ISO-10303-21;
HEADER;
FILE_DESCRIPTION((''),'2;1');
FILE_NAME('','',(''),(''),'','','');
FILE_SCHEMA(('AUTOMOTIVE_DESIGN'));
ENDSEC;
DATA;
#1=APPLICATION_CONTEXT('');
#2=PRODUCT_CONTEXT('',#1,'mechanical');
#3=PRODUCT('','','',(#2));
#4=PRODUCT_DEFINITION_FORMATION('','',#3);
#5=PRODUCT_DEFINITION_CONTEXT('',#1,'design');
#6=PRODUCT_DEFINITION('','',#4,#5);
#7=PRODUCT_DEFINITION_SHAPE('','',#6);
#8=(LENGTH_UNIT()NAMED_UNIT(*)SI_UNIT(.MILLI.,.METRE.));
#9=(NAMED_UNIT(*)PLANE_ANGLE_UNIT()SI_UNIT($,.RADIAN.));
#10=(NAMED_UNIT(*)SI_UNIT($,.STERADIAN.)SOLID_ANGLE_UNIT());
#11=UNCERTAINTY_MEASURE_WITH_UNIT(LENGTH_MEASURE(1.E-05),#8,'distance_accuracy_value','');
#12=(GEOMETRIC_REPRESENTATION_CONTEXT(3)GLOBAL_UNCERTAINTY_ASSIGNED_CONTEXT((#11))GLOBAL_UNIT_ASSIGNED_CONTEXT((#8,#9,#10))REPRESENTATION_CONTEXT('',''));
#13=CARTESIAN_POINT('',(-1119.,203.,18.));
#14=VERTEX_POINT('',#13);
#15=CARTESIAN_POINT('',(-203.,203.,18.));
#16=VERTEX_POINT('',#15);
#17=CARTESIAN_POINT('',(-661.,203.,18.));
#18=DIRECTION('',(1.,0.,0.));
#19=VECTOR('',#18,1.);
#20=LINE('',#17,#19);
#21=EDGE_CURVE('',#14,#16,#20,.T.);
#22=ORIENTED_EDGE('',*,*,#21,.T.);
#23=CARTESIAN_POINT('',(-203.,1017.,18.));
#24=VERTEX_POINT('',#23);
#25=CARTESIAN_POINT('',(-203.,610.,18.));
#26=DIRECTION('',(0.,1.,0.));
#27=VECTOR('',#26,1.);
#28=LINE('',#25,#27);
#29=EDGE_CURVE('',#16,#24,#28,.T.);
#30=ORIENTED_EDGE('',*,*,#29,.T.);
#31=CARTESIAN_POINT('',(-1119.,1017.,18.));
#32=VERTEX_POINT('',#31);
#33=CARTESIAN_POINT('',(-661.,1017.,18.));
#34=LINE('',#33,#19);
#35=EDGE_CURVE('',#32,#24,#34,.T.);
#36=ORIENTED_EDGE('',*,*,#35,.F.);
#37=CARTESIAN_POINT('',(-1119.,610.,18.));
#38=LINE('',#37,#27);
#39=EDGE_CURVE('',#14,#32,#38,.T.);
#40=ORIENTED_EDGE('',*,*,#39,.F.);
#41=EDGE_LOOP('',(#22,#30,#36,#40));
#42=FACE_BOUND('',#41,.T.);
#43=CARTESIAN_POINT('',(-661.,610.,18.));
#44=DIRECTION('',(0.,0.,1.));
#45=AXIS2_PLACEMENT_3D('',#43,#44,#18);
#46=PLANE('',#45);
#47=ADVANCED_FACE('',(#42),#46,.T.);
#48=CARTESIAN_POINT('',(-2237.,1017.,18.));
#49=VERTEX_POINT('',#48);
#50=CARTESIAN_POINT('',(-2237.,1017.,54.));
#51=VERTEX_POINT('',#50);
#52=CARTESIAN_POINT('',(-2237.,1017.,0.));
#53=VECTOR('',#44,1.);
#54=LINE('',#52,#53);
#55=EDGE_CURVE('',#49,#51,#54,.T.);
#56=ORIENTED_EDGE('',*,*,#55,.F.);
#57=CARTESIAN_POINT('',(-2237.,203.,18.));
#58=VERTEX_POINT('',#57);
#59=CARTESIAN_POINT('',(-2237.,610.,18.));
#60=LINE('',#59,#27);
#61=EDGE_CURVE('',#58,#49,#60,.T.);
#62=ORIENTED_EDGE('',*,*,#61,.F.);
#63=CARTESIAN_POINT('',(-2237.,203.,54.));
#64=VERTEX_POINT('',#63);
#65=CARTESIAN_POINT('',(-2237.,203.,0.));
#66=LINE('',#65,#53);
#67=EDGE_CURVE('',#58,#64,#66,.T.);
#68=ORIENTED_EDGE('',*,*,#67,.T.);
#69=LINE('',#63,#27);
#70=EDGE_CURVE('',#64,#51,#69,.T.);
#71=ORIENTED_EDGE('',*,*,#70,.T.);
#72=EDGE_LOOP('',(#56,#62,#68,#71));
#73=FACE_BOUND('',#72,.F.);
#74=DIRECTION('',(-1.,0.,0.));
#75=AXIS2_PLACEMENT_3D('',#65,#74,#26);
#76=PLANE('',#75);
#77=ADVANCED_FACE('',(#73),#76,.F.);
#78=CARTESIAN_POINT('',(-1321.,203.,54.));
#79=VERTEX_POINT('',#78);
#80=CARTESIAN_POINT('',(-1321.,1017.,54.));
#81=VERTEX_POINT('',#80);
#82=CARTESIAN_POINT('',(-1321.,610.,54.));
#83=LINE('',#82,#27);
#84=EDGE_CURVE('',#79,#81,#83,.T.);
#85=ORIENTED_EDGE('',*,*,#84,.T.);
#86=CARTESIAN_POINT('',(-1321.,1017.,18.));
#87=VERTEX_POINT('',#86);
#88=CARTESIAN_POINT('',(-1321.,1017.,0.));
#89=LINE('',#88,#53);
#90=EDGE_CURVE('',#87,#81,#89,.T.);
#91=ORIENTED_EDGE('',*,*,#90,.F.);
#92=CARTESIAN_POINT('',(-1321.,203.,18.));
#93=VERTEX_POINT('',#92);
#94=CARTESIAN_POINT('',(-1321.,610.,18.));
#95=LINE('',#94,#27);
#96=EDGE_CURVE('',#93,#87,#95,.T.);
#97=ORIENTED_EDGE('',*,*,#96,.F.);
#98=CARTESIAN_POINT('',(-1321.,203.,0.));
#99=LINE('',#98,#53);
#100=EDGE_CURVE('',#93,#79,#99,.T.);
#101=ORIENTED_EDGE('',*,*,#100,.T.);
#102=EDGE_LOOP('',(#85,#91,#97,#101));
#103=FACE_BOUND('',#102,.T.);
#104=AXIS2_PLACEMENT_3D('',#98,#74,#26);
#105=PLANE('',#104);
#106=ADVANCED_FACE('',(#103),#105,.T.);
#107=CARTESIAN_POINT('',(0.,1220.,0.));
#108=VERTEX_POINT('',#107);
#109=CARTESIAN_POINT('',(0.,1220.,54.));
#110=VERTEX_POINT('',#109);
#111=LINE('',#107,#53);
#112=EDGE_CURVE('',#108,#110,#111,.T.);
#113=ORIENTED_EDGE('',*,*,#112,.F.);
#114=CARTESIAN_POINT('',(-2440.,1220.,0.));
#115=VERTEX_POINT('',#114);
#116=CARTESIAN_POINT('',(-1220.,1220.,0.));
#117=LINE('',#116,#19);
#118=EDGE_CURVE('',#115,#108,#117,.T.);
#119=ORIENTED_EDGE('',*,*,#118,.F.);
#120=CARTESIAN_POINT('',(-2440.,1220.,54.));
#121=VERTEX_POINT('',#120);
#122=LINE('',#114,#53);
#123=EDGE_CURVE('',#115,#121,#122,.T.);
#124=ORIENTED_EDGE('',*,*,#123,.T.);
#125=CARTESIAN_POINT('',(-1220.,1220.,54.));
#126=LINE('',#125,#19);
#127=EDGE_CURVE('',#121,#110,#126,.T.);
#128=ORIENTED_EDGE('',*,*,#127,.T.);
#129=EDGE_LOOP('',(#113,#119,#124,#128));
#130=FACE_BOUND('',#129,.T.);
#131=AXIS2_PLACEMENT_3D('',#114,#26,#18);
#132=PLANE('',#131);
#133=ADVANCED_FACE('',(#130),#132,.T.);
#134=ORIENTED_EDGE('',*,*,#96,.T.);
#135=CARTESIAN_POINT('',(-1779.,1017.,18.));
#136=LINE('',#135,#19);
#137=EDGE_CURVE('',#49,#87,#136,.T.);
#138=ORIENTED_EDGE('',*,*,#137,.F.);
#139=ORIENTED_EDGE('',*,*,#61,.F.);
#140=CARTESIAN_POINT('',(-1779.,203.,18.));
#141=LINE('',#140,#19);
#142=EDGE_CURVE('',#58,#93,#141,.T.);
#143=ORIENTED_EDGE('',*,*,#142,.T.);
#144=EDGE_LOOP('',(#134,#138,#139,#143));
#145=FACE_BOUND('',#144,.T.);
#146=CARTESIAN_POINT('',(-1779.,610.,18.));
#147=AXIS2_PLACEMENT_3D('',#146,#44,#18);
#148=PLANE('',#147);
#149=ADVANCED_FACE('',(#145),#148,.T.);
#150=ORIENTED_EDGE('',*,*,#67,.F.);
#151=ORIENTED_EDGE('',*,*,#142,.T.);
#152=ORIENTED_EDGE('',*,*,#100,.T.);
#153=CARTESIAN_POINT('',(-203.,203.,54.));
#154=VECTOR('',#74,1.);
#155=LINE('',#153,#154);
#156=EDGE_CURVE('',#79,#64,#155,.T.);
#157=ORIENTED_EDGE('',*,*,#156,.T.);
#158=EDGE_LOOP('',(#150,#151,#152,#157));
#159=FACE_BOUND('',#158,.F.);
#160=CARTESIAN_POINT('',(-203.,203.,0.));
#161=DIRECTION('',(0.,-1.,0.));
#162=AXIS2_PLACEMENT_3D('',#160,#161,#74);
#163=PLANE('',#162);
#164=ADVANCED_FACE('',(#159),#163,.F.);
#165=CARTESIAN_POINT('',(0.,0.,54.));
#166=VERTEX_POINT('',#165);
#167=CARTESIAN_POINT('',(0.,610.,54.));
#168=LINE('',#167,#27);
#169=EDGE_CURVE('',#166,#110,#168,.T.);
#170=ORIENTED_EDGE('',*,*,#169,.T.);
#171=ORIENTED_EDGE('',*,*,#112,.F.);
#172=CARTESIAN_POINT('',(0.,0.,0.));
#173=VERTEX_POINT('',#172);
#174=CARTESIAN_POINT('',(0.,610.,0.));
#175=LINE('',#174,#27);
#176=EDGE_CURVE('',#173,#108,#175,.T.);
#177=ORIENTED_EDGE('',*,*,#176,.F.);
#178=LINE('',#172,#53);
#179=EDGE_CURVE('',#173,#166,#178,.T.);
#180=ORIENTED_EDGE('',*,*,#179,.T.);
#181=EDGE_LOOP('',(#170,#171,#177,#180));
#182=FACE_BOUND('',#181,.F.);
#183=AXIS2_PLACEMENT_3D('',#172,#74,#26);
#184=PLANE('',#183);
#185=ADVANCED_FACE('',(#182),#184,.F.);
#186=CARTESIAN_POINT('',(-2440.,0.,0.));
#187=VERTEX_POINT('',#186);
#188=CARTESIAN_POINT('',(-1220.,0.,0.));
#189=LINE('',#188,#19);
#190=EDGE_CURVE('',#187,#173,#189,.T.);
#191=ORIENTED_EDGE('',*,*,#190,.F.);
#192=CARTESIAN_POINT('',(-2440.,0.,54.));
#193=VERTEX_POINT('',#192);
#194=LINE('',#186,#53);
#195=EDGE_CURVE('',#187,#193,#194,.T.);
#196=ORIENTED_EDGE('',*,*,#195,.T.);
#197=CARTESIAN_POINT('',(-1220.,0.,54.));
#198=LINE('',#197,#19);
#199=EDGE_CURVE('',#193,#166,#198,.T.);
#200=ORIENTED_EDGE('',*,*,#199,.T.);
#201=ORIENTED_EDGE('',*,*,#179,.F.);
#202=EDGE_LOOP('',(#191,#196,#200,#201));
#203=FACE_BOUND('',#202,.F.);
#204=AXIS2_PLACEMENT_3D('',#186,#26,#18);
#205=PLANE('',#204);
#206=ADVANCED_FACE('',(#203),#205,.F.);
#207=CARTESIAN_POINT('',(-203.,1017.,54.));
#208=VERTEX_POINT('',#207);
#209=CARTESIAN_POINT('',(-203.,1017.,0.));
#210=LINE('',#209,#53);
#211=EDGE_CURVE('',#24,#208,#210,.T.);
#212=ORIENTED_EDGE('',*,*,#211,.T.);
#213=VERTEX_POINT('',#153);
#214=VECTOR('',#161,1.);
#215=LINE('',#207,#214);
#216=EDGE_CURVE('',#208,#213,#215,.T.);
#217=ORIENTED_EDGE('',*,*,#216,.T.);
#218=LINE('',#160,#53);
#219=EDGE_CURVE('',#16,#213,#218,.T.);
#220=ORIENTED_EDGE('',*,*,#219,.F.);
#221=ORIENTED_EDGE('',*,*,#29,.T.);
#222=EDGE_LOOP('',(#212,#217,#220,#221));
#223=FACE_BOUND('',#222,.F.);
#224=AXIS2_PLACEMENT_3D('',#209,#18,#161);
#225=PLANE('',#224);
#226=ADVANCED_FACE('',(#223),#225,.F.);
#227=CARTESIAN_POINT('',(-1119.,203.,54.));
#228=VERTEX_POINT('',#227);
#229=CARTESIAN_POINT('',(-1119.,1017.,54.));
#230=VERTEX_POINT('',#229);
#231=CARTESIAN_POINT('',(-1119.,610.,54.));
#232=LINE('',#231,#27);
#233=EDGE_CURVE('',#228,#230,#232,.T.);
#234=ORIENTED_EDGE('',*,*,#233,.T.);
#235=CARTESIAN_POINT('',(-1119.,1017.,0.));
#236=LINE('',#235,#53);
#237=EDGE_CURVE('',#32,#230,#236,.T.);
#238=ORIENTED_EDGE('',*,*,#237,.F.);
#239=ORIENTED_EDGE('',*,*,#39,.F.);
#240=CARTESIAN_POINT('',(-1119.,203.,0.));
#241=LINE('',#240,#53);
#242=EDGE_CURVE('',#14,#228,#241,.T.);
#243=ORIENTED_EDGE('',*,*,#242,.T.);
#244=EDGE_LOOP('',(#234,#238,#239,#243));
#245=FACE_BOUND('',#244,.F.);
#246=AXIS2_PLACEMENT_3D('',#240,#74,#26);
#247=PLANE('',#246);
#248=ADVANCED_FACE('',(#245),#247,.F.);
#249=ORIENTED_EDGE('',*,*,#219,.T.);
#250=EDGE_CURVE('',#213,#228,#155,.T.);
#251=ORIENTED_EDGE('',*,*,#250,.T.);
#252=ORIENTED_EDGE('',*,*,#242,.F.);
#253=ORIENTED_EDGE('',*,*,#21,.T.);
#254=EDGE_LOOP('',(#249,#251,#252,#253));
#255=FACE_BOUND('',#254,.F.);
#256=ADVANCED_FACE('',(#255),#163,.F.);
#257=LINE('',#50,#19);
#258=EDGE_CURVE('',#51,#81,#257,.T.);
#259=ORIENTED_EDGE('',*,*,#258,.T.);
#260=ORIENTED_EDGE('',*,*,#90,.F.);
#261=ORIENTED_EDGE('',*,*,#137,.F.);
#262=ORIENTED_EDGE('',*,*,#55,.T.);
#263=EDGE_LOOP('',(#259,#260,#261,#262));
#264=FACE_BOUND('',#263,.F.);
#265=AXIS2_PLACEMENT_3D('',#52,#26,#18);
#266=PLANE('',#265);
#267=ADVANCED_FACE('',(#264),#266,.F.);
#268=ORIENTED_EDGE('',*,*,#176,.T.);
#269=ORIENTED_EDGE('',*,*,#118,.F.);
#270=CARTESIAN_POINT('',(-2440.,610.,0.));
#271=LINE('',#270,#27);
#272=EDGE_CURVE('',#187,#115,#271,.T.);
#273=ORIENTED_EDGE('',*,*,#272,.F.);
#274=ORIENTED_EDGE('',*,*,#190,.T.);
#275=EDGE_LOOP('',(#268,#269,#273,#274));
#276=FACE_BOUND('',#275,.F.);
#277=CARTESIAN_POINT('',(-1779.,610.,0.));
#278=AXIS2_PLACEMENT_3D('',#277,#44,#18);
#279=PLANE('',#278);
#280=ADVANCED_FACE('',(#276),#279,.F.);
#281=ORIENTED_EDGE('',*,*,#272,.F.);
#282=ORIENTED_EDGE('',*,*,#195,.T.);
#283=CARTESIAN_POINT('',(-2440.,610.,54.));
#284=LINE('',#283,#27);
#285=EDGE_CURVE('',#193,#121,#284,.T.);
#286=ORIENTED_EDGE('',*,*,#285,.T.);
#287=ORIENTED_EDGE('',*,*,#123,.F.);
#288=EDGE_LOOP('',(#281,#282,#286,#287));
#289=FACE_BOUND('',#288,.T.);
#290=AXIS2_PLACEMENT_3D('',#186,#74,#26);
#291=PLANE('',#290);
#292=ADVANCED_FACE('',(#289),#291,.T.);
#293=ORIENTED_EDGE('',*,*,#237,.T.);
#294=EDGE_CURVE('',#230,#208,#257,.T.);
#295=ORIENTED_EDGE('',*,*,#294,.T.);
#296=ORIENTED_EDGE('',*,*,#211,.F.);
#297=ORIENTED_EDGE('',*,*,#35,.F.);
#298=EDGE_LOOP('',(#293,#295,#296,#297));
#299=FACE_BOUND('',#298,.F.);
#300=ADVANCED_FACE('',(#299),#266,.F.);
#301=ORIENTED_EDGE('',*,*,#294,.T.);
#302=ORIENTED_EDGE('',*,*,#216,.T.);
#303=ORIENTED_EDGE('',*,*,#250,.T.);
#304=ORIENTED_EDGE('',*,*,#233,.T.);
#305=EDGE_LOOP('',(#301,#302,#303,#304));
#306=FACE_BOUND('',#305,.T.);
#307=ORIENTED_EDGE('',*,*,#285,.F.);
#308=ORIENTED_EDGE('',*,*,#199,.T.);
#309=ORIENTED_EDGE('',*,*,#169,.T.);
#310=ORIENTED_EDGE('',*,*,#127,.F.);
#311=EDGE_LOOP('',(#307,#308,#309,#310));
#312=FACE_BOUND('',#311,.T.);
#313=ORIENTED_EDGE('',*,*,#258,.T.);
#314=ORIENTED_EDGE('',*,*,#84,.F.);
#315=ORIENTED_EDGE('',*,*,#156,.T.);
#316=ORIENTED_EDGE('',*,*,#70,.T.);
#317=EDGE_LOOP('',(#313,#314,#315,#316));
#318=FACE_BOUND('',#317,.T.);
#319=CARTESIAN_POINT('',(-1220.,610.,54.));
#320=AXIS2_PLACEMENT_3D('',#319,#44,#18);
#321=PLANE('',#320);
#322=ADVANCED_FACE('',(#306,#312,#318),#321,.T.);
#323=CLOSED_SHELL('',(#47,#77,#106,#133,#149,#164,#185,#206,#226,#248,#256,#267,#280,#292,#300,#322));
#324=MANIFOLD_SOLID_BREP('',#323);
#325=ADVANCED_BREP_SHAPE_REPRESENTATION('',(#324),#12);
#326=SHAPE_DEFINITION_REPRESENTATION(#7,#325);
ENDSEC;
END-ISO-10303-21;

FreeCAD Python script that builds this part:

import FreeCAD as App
import Part
import Sketcher

doc = App.newDocument("Part")
body = doc.addObject("PartDesign::Body", "Body")

# Sketch on XY plane
sketch1 = body.newObject("Sketcher::SketchObject", "Sketch")
sketch1.AttachmentSupport = (doc.getObject("XY_Plane"), [""])
sketch1.MapMode = "FlatFace"
sketch1.addGeometry([
    Part.LineSegment(App.Vector(-2440, 1220, 0), App.Vector(-2440, 0, 0)),  # 0
    Part.LineSegment(App.Vector(-2440, 0, 0), App.Vector(0, 0, 0)),  # 1
    Part.LineSegment(App.Vector(0, 0, 0), App.Vector(0, 1220, 0)),  # 2
    Part.LineSegment(App.Vector(0, 1220, 0), App.Vector(-2440, 1220, 0)),  # 3
    Part.LineSegment(App.Vector(-203, 203, 0), App.Vector(-2237, 203, 0)),  # 4
    Part.LineSegment(App.Vector(-2237, 203, 0), App.Vector(-2237, 1017, 0)),  # 5
    Part.LineSegment(App.Vector(-2237, 1017, 0), App.Vector(-203, 1017, 0)),  # 6
    Part.LineSegment(App.Vector(-203, 1017, 0), App.Vector(-203, 203, 0)),  # 7
], False)
sketch1.addConstraint([
    Sketcher.Constraint("Coincident", 0, 2, 1, 1),
    Sketcher.Constraint("Coincident", 1, 2, 2, 1),
    Sketcher.Constraint("Coincident", 2, 2, 3, 1),
    Sketcher.Constraint("Coincident", 3, 2, 0, 1),
    Sketcher.Constraint("Coincident", 4, 2, 5, 1),
    Sketcher.Constraint("Coincident", 5, 2, 6, 1),
    Sketcher.Constraint("Coincident", 6, 2, 7, 1),
    Sketcher.Constraint("Coincident", 7, 2, 4, 1),
    Sketcher.Constraint("Vertical", 0),
    Sketcher.Constraint("Horizontal", 1),
    Sketcher.Constraint("Vertical", 2),
    Sketcher.Constraint("Horizontal", 3),
    Sketcher.Constraint("Horizontal", 4),
    Sketcher.Constraint("Vertical", 5),
    Sketcher.Constraint("Horizontal", 6),
    Sketcher.Constraint("Vertical", 7),
    Sketcher.Constraint("Coincident", 1, 2, -1, 1),
    Sketcher.Constraint("DistanceX", 1, 1, 1, 2, 2440.0),
    Sketcher.Constraint("DistanceX", 4, 2, 4, 1, 2034.0),
    Sketcher.Constraint("DistanceY", 0, 2, 0, 1, 1220.0),
    Sketcher.Constraint("DistanceY", 5, 1, 5, 2, 814.0),
    Sketcher.Constraint("DistanceX", 4, 2, -1, 1, 2237.0),
    Sketcher.Constraint("DistanceY", -1, 1, 4, 2, 203.0),
])
pad1 = body.newObject("PartDesign::Pad", "Pad")
pad1.Profile = sketch1
pad1.Length = 54

# Sketch on XY plane
sketch2 = body.newObject("Sketcher::SketchObject", "Sketch001")
sketch2.AttachmentSupport = (doc.getObject("XY_Plane"), [""])
sketch2.MapMode = "FlatFace"
sketch2.addGeometry([
    Part.LineSegment(App.Vector(-1321, 1017, 0), App.Vector(-1321, 203, 0)),
    Part.LineSegment(App.Vector(-1321, 203, 0), App.Vector(-1119, 203, 0)),
    Part.LineSegment(App.Vector(-1119, 203, 0), App.Vector(-1119, 1017, 0)),
    Part.LineSegment(App.Vector(-1119, 1017, 0), App.Vector(-1321, 1017, 0)),
], False)
sketch2.addConstraint([
    Sketcher.Constraint("Coincident", 0, 2, 1, 1),
    Sketcher.Constraint("Coincident", 1, 2, 2, 1),
    Sketcher.Constraint("Coincident", 2, 2, 3, 1),
    Sketcher.Constraint("Coincident", 3, 2, 0, 1),
    Sketcher.Constraint("Vertical", 0),
    Sketcher.Constraint("Horizontal", 1),
    Sketcher.Constraint("Vertical", 2),
    Sketcher.Constraint("Horizontal", 3),
    Sketcher.Constraint("DistanceX", 1, 1, 1, 2, 202.0),
    Sketcher.Constraint("DistanceY", 0, 2, 0, 1, 814.0),
    Sketcher.Constraint("DistanceX", 0, 2, -1, 1, 1321.0),
    Sketcher.Constraint("DistanceY", -1, 1, 0, 2, 203.0),
])
pad2 = body.newObject("PartDesign::Pad", "Pad001")
pad2.Profile = sketch2
pad2.Length = 54

# Sketch on XY plane
sketch3 = body.newObject("Sketcher::SketchObject", "Sketch002")
sketch3.AttachmentSupport = (doc.getObject("XY_Plane"), [""])
sketch3.MapMode = "FlatFace"
sketch3.addGeometry([
    Part.LineSegment(App.Vector(-2237, 1017, 0), App.Vector(-2237, 203, 0)),  # 0
    Part.LineSegment(App.Vector(-2237, 203, 0), App.Vector(-1321, 203, 0)),  # 1
    Part.LineSegment(App.Vector(-1321, 203, 0), App.Vector(-1321, 1017, 0)),  # 2
    Part.LineSegment(App.Vector(-1321, 1017, 0), App.Vector(-2237, 1017, 0)),  # 3
    Part.LineSegment(App.Vector(-1119, 1017, 0), App.Vector(-1119, 203, 0)),  # 4
    Part.LineSegment(App.Vector(-1119, 203, 0), App.Vector(-203, 203, 0)),  # 5
    Part.LineSegment(App.Vector(-203, 203, 0), App.Vector(-203, 1017, 0)),  # 6
    Part.LineSegment(App.Vector(-203, 1017, 0), App.Vector(-1119, 1017, 0)),  # 7
], False)
sketch3.addConstraint([
    Sketcher.Constraint("Coincident", 0, 2, 1, 1),
    Sketcher.Constraint("Coincident", 1, 2, 2, 1),
    Sketcher.Constraint("Coincident", 2, 2, 3, 1),
    Sketcher.Constraint("Coincident", 3, 2, 0, 1),
    Sketcher.Constraint("Coincident", 4, 2, 5, 1),
    Sketcher.Constraint("Coincident", 5, 2, 6, 1),
    Sketcher.Constraint("Coincident", 6, 2, 7, 1),
    Sketcher.Constraint("Coincident", 7, 2, 4, 1),
    Sketcher.Constraint("Vertical", 0),
    Sketcher.Constraint("Horizontal", 1),
    Sketcher.Constraint("Vertical", 2),
    Sketcher.Constraint("Horizontal", 3),
    Sketcher.Constraint("Vertical", 4),
    Sketcher.Constraint("Horizontal", 5),
    Sketcher.Constraint("Vertical", 6),
    Sketcher.Constraint("Horizontal", 7),
    Sketcher.Constraint("Horizontal", 1, 2, 4, 2),
    Sketcher.Constraint("Horizontal", 3, 2, 6, 2),
    Sketcher.Constraint("Equal", 3, 5),
    Sketcher.Constraint("DistanceX", 1, 1, 1, 2, 916.0),
    Sketcher.Constraint("DistanceY", 0, 2, 0, 1, 814.0),
    Sketcher.Constraint("DistanceX", 0, 2, -1, 1, 2237.0),
    Sketcher.Constraint("DistanceY", -1, 1, 0, 2, 203.0),
    Sketcher.Constraint("DistanceX", 4, 2, -1, 1, 1119.0),
])
pad3 = body.newObject("PartDesign::Pad", "Pad002")
pad3.Profile = sketch3
pad3.Length = 18

doc.recompute()
